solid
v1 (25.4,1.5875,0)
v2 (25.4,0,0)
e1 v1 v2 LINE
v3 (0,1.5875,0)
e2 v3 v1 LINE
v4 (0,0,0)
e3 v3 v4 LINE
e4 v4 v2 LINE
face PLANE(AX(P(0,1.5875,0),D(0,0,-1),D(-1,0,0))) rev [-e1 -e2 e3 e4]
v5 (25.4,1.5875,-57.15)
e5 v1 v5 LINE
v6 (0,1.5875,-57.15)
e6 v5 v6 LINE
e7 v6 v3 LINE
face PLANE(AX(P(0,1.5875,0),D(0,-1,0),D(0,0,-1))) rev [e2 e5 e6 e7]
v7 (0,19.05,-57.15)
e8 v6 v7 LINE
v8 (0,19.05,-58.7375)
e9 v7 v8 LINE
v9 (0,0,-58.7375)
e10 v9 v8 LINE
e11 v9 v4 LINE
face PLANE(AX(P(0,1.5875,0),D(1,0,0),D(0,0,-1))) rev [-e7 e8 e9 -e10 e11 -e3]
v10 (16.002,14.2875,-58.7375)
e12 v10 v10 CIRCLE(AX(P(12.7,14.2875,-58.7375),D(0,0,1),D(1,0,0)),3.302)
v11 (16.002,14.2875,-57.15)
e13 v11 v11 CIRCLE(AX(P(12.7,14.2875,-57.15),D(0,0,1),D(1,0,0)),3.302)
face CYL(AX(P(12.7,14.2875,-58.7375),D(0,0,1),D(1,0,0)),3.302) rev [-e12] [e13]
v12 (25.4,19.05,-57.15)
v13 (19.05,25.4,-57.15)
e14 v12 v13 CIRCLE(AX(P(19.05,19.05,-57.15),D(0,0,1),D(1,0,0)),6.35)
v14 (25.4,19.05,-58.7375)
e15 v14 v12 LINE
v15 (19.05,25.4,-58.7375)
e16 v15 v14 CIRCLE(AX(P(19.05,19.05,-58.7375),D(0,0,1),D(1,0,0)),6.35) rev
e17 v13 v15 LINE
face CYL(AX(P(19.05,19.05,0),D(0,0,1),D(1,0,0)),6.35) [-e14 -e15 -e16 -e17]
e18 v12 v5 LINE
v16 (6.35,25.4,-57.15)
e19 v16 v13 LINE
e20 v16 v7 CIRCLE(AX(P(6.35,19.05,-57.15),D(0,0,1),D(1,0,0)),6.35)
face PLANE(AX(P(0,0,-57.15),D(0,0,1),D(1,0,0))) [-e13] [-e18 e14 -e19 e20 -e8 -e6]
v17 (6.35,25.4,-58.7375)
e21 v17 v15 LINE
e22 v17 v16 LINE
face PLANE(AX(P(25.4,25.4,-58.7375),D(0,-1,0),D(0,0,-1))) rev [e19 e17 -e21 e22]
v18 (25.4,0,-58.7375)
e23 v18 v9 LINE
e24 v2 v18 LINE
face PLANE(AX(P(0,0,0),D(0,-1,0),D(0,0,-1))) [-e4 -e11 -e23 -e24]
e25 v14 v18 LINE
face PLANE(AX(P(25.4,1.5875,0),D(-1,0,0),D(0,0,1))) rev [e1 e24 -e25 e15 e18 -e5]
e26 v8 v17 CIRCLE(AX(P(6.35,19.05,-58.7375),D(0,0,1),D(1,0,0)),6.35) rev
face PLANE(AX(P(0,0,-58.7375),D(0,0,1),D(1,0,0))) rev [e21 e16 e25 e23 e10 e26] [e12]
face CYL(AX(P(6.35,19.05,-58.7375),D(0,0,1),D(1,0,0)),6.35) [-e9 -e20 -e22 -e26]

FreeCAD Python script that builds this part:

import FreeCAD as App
import Part
import Sketcher
Q = App.Units.Quantity


def edges_at(feature, points):
    """Names of the edges that pass closest to the given points."""
    edges = feature.Shape.Edges
    near = lambda p: min(range(len(edges)), key=lambda i: edges[i].distToShape(Part.Vertex(*p))[0])
    return sorted({f"Edge{near(p) + 1}" for p in points})


def add_polygon(sketch, points):
    """Adds a closed chain of lines whose ends are joined by coincident constraints."""
    first, n = sketch.GeometryCount, len(points)
    for a, b in zip(points, points[1:] + points[:1]):
        sketch.addGeometry(Part.LineSegment(App.Vector(*a, 0), App.Vector(*b, 0)), False)
    for i in range(n):
        sketch.addConstraint(Sketcher.Constraint("Coincident", first + i, 2, first + (i + 1) % n, 1))

doc = App.newDocument("Part")
body = doc.addObject("PartDesign::Body", "Body")

# Sketch on XZ plane
sketch1 = doc.addObject("Sketcher::SketchObject", "Sketch")
body.addObject(sketch1)
sketch1.AttachmentSupport = (doc.XZ_Plane, [""])
sketch1.MapMode = "FlatFace"
add_polygon(sketch1, [(0, -57), (0, 0), (25, 0), (25, -57)])  # lines 0-3
sketch1.addConstraint([
    Sketcher.Constraint("Vertical", 0),
    Sketcher.Constraint("Horizontal", 1),
    Sketcher.Constraint("Vertical", 2),
    Sketcher.Constraint("Horizontal", 3),
    Sketcher.Constraint("Coincident", 0, 2, -1, 1),
    Sketcher.Constraint("DistanceX", 1, 1, 1, 2, Q("1 in")),
    Sketcher.Constraint("DistanceY", 0, 1, 0, 2, Q("2.25 in")),
])
pad1 = doc.addObject("PartDesign::Pad", "Pad")
body.addObject(pad1)
pad1.Profile = sketch1
pad1.Length = Q("0.0625 in")
pad1.Reversed = True

# Sketch on XY plane
sketch2 = doc.addObject("Sketcher::SketchObject", "Sketch001")
body.addObject(sketch2)
sketch2.AttachmentSupport = (doc.XY_Plane, [""])
sketch2.MapMode = "FlatFace"
sketch2.AttachmentOffset = App.Placement(App.Vector(0, 0, -2.25 * 25.4), App.Rotation())
add_polygon(sketch2, [(25, 25), (25, 0), (0, 0), (0, 25)])  # lines 0-3
sketch2.addConstraint([
    Sketcher.Constraint("Vertical", 0),
    Sketcher.Constraint("Horizontal", 1),
    Sketcher.Constraint("Vertical", 2),
    Sketcher.Constraint("Horizontal", 3),
    Sketcher.Constraint("Coincident", 1, 2, -1, 1),
    Sketcher.Constraint("Equal", 3, 0),
    Sketcher.Constraint("DistanceX", 1, 2, 1, 1, Q("1 in")),
])
pad2 = doc.addObject("PartDesign::Pad", "Pad001")
body.addObject(pad2)
pad2.Profile = sketch2
pad2.Length = Q("0.0625 in")
pad2.Reversed = True

# Sketch on XY plane
sketch3 = doc.addObject("Sketcher::SketchObject", "Sketch002")
body.addObject(sketch3)
sketch3.AttachmentSupport = (doc.XY_Plane, [""])
sketch3.MapMode = "FlatFace"
sketch3.AttachmentOffset = App.Placement(App.Vector(0, 0, -2.25 * 25.4), App.Rotation())
sketch3.addGeometry(Part.Circle(App.Vector(12.7, 14.3, 0), App.Vector(0, 0, 1), 3.3), False)
sketch3.addConstraint([
    Sketcher.Constraint("Diameter", 0, Q("0.26 in")),
    Sketcher.Constraint("DistanceX", -1, 1, 0, 3, Q("0.5 in")),
    Sketcher.Constraint("DistanceY", -1, 1, 0, 3, Q("0.5625 in")),
])
pocket1 = doc.addObject("PartDesign::Pocket", "Pocket")
body.addObject(pocket1)
pocket1.Profile = sketch3
pocket1.Type = "ThroughAll"
doc.recompute()

fillet = doc.addObject("PartDesign::Fillet", "Fillet")
body.addObject(fillet)
fillet.Base = (pocket1, edges_at(pocket1, [(25.4, 25.4, -57.944), (0, 25.4, -57.944)]))
fillet.Radius = Q("0.25 in")

doc.recompute()
